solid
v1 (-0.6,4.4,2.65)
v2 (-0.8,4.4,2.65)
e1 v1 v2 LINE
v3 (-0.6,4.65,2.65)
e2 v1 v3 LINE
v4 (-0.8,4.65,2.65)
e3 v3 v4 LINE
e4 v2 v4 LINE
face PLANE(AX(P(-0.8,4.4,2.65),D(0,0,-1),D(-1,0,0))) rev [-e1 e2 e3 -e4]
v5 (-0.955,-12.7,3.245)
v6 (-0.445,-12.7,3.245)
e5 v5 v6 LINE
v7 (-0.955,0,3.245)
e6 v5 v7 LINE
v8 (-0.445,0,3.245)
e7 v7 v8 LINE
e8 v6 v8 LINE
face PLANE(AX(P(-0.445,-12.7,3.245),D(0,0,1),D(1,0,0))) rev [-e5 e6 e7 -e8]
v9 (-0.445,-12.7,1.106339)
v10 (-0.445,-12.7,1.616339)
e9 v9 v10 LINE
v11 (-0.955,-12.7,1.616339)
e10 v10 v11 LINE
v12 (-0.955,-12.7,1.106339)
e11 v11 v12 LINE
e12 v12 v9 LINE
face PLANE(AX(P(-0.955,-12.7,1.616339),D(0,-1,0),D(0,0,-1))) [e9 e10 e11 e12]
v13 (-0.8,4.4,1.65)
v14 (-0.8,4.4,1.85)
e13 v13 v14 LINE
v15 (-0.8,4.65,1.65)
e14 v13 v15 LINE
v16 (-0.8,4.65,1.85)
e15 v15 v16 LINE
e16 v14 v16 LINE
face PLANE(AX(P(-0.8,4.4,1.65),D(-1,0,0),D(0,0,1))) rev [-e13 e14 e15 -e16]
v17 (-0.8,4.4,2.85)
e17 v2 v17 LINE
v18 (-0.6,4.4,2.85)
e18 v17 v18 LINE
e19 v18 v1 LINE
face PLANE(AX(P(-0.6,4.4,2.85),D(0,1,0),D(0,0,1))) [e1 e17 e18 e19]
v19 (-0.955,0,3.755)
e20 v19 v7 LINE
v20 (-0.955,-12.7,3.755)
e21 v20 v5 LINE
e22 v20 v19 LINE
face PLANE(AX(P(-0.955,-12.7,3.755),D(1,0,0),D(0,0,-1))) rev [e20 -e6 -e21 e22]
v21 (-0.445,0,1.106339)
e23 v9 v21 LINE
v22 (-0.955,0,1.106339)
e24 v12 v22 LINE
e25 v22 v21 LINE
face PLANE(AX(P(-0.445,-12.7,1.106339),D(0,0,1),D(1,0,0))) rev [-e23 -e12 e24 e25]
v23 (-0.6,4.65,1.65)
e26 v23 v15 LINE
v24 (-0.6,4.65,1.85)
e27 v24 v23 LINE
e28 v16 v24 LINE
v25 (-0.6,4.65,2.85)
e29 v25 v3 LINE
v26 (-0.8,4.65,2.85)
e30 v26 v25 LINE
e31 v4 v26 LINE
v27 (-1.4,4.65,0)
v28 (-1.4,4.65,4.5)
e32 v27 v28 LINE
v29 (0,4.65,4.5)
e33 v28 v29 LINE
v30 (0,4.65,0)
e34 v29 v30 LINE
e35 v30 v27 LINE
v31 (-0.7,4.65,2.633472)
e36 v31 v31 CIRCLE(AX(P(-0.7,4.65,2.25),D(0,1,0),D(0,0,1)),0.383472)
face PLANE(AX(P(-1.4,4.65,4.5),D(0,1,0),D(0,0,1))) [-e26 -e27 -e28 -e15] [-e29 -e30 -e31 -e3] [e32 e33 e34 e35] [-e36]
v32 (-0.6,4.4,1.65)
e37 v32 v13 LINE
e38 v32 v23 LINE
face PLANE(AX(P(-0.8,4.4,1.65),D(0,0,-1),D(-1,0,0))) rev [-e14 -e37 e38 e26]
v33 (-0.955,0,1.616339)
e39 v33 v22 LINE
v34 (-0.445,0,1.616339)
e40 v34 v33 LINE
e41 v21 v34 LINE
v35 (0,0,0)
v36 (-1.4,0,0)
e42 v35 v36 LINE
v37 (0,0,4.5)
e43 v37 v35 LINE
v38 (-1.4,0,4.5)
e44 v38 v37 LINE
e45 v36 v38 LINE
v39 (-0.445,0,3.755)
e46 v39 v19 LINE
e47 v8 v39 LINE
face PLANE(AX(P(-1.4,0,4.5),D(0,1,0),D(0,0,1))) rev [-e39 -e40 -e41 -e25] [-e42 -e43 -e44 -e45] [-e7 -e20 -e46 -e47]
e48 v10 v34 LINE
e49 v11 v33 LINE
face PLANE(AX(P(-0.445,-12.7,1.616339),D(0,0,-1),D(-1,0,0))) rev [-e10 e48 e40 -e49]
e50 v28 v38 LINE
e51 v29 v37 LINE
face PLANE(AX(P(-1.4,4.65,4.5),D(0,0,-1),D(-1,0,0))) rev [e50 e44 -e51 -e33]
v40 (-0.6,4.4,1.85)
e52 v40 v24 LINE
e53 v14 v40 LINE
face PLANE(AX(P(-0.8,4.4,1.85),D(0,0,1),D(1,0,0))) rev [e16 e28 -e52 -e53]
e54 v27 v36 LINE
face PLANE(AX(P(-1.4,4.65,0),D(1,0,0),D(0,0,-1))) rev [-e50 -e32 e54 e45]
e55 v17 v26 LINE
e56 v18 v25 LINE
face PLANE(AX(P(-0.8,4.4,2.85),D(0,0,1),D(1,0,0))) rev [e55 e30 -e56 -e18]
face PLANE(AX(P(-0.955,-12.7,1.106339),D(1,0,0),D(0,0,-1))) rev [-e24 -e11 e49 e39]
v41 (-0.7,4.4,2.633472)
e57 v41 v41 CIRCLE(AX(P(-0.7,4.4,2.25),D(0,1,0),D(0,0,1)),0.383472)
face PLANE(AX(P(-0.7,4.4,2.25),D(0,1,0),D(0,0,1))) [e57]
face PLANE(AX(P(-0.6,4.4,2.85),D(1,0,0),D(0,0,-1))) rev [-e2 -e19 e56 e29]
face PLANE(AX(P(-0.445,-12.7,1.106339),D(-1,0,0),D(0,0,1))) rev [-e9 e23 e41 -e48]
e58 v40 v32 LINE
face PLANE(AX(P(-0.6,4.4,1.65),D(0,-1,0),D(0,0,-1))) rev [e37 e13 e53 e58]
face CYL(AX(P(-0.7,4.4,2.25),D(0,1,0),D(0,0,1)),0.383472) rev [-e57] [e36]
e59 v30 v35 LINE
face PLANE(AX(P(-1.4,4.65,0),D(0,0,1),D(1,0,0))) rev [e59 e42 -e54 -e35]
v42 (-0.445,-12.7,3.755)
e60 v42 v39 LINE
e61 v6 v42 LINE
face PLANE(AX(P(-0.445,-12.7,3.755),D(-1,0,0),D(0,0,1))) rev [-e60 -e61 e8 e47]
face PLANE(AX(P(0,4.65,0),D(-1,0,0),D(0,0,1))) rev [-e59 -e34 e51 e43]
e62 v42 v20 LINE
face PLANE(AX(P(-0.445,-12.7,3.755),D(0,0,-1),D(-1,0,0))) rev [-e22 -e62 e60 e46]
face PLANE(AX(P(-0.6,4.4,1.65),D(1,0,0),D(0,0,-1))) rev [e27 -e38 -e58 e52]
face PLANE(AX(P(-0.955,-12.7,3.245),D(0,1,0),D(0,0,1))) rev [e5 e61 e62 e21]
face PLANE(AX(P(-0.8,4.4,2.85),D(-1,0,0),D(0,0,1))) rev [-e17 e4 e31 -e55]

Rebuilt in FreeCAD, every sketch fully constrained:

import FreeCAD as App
import Part
import Sketcher
from FreeCAD import Vector
Q = App.Units.Quantity


def add_polygon(sketch, points):
    """Adds a closed chain of lines whose ends are joined by coincident constraints."""
    first, n = sketch.GeometryCount, len(points)
    for a, b in zip(points, points[1:] + points[:1]):
        sketch.addGeometry(Part.LineSegment(App.Vector(*a, 0), App.Vector(*b, 0)), False)
    for i in range(n):
        sketch.addConstraint(Sketcher.Constraint("Coincident", first + i, 2, first + (i + 1) % n, 1))

doc = App.newDocument("Part")
params = doc.addObject("Spreadsheet::Sheet", "Params")
for row, (alias, value) in enumerate([
    ("sketch1_width", "1.4 mm"),
    ("sketch1_height", "4.5 mm"),
    ("pad1_length", "4.65 mm"),
    ("pocket1_length", "0.25 mm"),
    ("sketch3_width", "0.2 mm"),
    ("pocket2_length", "0.25 mm"),
    ("sketch4_width", "0.51 mm"),
    ("pad2_length", "12.7 mm"),
], start=1):
    params.set(f"A{row}", alias)
    params.set(f"B{row}", "=" + value)
    params.setAlias(f"B{row}", alias)

body = doc.addObject("PartDesign::Body", "Body")

# Sketch on XZ plane
sketch1 = body.newObject("Sketcher::SketchObject", "Sketch")
sketch1.AttachmentSupport = (doc.getObject("XZ_Plane"), [""])
sketch1.MapMode = "FlatFace"
add_polygon(sketch1, [(-1.4, 0), (-1.4, 4.5), (0, 4.5), (0, 0)])  # lines 0-3
sketch1.addConstraint([
    Sketcher.Constraint("Vertical", 0),
    Sketcher.Constraint("Horizontal", 1),
    Sketcher.Constraint("Vertical", 2),
    Sketcher.Constraint("Horizontal", 3),
    Sketcher.Constraint("Coincident", 2, 2, -1, 1),
    Sketcher.Constraint("DistanceX", 1, 1, 1, 2, Q("1.4 mm")),
    Sketcher.Constraint("DistanceY", 0, 1, 0, 2, Q("4.5 mm")),
])
sketch1.setExpression("Constraints[9]", "Params.sketch1_width")
sketch1.setExpression("Constraints[10]", "Params.sketch1_height")
pad1 = body.newObject("PartDesign::Pad", "Pad")
pad1.Profile = sketch1
pad1.setExpression("Length", "Params.pad1_length")
pad1.Reversed = True

# Sketch on XZ plane
sketch2 = body.newObject("Sketcher::SketchObject", "Sketch001")
sketch2.AttachmentSupport = (doc.getObject("XZ_Plane"), [""])
sketch2.MapMode = "FlatFace"
sketch2.AttachmentOffset = App.Placement(Vector(0, 0, -4.65), App.Rotation())
sketch2.addGeometry(Part.Circle(Vector(-0.7, 2.25, 0), Vector(0, 0, 1), 0.38), False)
sketch2.addConstraint([
    Sketcher.Constraint("DistanceX", 0, 3, -1, 1, Q("0.7 mm")),
    Sketcher.Constraint("DistanceY", -1, 1, 0, 3, Q("2.25 mm")),
    Sketcher.Constraint("Diameter", 0, Q("0.766944 mm")),
])
pocket1 = body.newObject("PartDesign::Pocket", "Pocket")
pocket1.Profile = sketch2
pocket1.setExpression("Length", "Params.pocket1_length")
pocket1.Reversed = True

# Sketch on XZ plane
sketch3 = body.newObject("Sketcher::SketchObject", "Sketch002")
sketch3.AttachmentSupport = (doc.getObject("XZ_Plane"), [""])
sketch3.MapMode = "FlatFace"
sketch3.AttachmentOffset = App.Placement(Vector(0, 0, -4.65), App.Rotation())
add_polygon(sketch3, [(-0.8, 1.65), (-0.8, 1.85), (-0.6, 1.85), (-0.6, 1.65)])  # lines 0-3
add_polygon(sketch3, [(-0.8, 2.65), (-0.8, 2.85), (-0.6, 2.85), (-0.6, 2.65)])  # lines 4-7
sketch3.addConstraint([
    Sketcher.Constraint("Vertical", 0),
    Sketcher.Constraint("Horizontal", 1),
    Sketcher.Constraint("Vertical", 2),
    Sketcher.Constraint("Horizontal", 3),
    Sketcher.Constraint("Vertical", 4),
    Sketcher.Constraint("Horizontal", 5),
    Sketcher.Constraint("Vertical", 6),
    Sketcher.Constraint("Horizontal", 7),
    Sketcher.Constraint("Vertical", 3, 2, 4, 2),
    Sketcher.Constraint("Vertical", 2, 2, 5, 2),
    Sketcher.Constraint("Equal", 7, 0),
    Sketcher.Constraint("Equal", 2, 4),
    Sketcher.Constraint("DistanceX", 1, 1, 1, 2, Q("0.2 mm")),
    Sketcher.Constraint("DistanceY", 0, 2, 4, 2, Q("1 mm")),
    Sketcher.Constraint("DistanceX", 0, 2, -1, 1, Q("0.8 mm")),
    Sketcher.Constraint("DistanceY", -1, 1, 0, 2, Q("1.85 mm")),
])
sketch3.setExpression("Constraints[20]", "Params.sketch3_width")
pocket2 = body.newObject("PartDesign::Pocket", "Pocket001")
pocket2.Profile = sketch3
pocket2.setExpression("Length", "Params.pocket2_length")
pocket2.Reversed = True

# Sketch on XZ plane
sketch4 = body.newObject("Sketcher::SketchObject", "Sketch003")
sketch4.AttachmentSupport = (doc.getObject("XZ_Plane"), [""])
sketch4.MapMode = "FlatFace"
add_polygon(sketch4, [(-1, 3.8), (-1, 3.2), (-0.4, 3.2), (-0.4, 3.8)])  # lines 0-3
add_polygon(sketch4, [(-1, 1.6), (-1, 1.1), (-0.4, 1.1), (-0.4, 1.6)])  # lines 4-7
sketch4.addConstraint([
    Sketcher.Constraint("Vertical", 0),
    Sketcher.Constraint("Horizontal", 1),
    Sketcher.Constraint("Vertical", 2),
    Sketcher.Constraint("Horizontal", 3),
    Sketcher.Constraint("Vertical", 4),
    Sketcher.Constraint("Horizontal", 5),
    Sketcher.Constraint("Vertical", 6),
    Sketcher.Constraint("Horizontal", 7),
    Sketcher.Constraint("Vertical", 3, 2, 4, 2),
    Sketcher.Constraint("Vertical", 2, 2, 5, 2),
    Sketcher.Constraint("Equal", 7, 0),
    Sketcher.Constraint("Equal", 2, 4),
    Sketcher.Constraint("DistanceX", 1, 1, 1, 2, Q("0.51 mm")),
    Sketcher.Constraint("DistanceX", 0, 2, -1, 1, Q("0.955 mm")),
    Sketcher.Constraint("DistanceY", -1, 1, 0, 2, Q("3.245 mm")),
    Sketcher.Constraint("DistanceY", -1, 1, 4, 2, Q("1.106339 mm")),
])
sketch4.setExpression("Constraints[20]", "Params.sketch4_width")
pad2 = body.newObject("PartDesign::Pad", "Pad001")
pad2.Profile = sketch4
pad2.setExpression("Length", "Params.pad2_length")

doc.recompute()
